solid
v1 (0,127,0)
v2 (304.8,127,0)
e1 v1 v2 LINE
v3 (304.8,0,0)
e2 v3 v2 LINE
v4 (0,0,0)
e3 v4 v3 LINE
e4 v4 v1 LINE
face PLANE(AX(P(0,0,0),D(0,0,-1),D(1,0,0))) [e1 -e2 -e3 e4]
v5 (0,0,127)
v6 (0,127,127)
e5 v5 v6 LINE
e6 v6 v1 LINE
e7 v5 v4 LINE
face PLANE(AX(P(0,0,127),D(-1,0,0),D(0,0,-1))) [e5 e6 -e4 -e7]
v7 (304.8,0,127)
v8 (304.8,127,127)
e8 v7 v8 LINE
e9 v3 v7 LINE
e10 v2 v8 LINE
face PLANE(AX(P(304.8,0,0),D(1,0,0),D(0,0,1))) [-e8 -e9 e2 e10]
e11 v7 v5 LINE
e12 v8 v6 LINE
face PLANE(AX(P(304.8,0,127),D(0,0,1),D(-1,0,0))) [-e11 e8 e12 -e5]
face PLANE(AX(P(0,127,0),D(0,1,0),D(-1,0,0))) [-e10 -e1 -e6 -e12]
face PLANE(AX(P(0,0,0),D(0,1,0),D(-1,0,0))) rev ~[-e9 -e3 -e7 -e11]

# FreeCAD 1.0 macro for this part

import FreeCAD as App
import Part
import Sketcher

V = App.Vector
Q = App.Units.Quantity


def add_polygon(sketch, points):
    """Adds a closed chain of lines whose ends are joined by coincident constraints."""
    first, n = sketch.GeometryCount, len(points)
    for a, b in zip(points, points[1:] + points[:1]):
        sketch.addGeometry(Part.LineSegment(App.Vector(*a, 0), App.Vector(*b, 0)), False)
    for i in range(n):
        sketch.addConstraint(Sketcher.Constraint("Coincident", first + i, 2, first + (i + 1) % n, 1))

doc = App.newDocument("Part")
body = doc.addObject("PartDesign::Body", "Body")

sketch1 = body.newObject("Sketcher::SketchObject", "Sketch")
sketch1.AttachmentSupport = (doc.getObject("XZ_Plane"), [""])
sketch1.MapMode = "FlatFace"
add_polygon(sketch1, [(304.8, 0), (0, 0), (0, 127), (304.8, 127)])
sketch1.addConstraint([
    Sketcher.Constraint("Horizontal", 0),
    Sketcher.Constraint("Vertical", 1),
    Sketcher.Constraint("Horizontal", 2),
    Sketcher.Constraint("Vertical", 3),
    Sketcher.Constraint("Coincident", 0, 2, -1, 1),
    Sketcher.Constraint("DistanceX", 0, 2, 0, 1, Q("12 in")),
    Sketcher.Constraint("DistanceY", 1, 1, 1, 2, Q("5 in")),
])
pad1 = body.newObject("PartDesign::Pad", "Pad")
pad1.Profile = sketch1
pad1.Length = Q("5 in")
pad1.Reversed = True

doc.recompute()
